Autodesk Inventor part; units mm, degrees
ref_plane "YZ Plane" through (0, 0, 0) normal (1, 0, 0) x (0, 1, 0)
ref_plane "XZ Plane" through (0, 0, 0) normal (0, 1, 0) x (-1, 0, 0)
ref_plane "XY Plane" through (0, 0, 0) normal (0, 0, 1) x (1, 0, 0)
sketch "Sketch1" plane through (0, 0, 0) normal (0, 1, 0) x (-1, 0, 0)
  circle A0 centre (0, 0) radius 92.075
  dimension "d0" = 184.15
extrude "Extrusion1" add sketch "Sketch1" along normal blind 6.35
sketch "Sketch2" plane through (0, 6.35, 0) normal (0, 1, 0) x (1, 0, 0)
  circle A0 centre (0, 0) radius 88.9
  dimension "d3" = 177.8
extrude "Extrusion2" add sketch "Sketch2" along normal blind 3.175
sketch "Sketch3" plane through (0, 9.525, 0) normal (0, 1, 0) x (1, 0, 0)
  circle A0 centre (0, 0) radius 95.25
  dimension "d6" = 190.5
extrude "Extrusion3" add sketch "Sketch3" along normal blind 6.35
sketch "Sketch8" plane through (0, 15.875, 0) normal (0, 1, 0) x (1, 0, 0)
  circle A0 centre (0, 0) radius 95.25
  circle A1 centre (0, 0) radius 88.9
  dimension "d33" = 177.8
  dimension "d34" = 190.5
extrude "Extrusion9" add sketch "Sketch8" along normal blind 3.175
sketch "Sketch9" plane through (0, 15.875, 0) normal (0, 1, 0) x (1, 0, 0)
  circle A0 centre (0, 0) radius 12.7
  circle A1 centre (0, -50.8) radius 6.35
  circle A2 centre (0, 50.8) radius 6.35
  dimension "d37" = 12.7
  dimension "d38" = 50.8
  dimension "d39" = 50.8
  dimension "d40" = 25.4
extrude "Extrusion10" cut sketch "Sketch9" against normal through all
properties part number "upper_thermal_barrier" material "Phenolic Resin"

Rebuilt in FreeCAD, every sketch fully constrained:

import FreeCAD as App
import Part
import Sketcher
from FreeCAD import Vector
Q = App.Units.Quantity

doc = App.newDocument("Part")
body = doc.addObject("PartDesign::Body", "Body")

# Sketch on XZ plane
sketch1 = doc.addObject("Sketcher::SketchObject", "Sketch")
body.addObject(sketch1)
sketch1.AttachmentSupport = (doc.XZ_Plane, [""])
sketch1.MapMode = "FlatFace"
sketch1.addGeometry(Part.Circle(Vector(0, 0, 0), Vector(0, 0, 1), 92), False)
sketch1.addConstraint([
    Sketcher.Constraint("Coincident", 0, 3, -1, 1),
    Sketcher.Constraint("Diameter", 0, Q("7.25 in")),
])
pad1 = doc.addObject("PartDesign::Pad", "Pad")
body.addObject(pad1)
pad1.Profile = sketch1
pad1.Length = Q("0.25 in")
pad1.Reversed = True

# Sketch on XZ plane
sketch2 = doc.addObject("Sketcher::SketchObject", "Sketch001")
body.addObject(sketch2)
sketch2.AttachmentSupport = (doc.XZ_Plane, [""])
sketch2.MapMode = "FlatFace"
sketch2.AttachmentOffset = App.Placement(Vector(0, 0, -0.25 * 25.4), App.Rotation())
sketch2.addGeometry(Part.Circle(Vector(0, 0, 0), Vector(0, 0, 1), 89), False)
sketch2.addConstraint([
    Sketcher.Constraint("Coincident", 0, 3, -1, 1),
    Sketcher.Constraint("Diameter", 0, Q("7 in")),
])
pad2 = doc.addObject("PartDesign::Pad", "Pad001")
body.addObject(pad2)
pad2.Profile = sketch2
pad2.Length = Q("0.125 in")
pad2.Reversed = True

# Sketch on XZ plane
sketch3 = doc.addObject("Sketcher::SketchObject", "Sketch002")
body.addObject(sketch3)
sketch3.AttachmentSupport = (doc.XZ_Plane, [""])
sketch3.MapMode = "FlatFace"
sketch3.AttachmentOffset = App.Placement(Vector(0, 0, -0.375 * 25.4), App.Rotation())
sketch3.addGeometry(Part.Circle(Vector(0, 0, 0), Vector(0, 0, 1), 95), False)
sketch3.addConstraint([
    Sketcher.Constraint("Coincident", 0, 3, -1, 1),
    Sketcher.Constraint("Diameter", 0, Q("7.5 in")),
])
pad3 = doc.addObject("PartDesign::Pad", "Pad002")
body.addObject(pad3)
pad3.Profile = sketch3
pad3.Length = Q("0.25 in")
pad3.Reversed = True

# Sketch on XZ plane
sketch4 = doc.addObject("Sketcher::SketchObject", "Sketch003")
body.addObject(sketch4)
sketch4.AttachmentSupport = (doc.XZ_Plane, [""])
sketch4.MapMode = "FlatFace"
sketch4.AttachmentOffset = App.Placement(Vector(0, 0, -0.625 * 25.4), App.Rotation())
sketch4.addGeometry([
    Part.Circle(Vector(0, 0, 0), Vector(0, 0, 1), 95),
    Part.Circle(Vector(0, 0, 0), Vector(0, 0, 1), 89),
], False)
sketch4.addConstraint([
    Sketcher.Constraint("Coincident", 0, 3, -1, 1),
    Sketcher.Constraint("Coincident", 1, 3, -1, 1),
    Sketcher.Constraint("Diameter", 1, Q("7 in")),
    Sketcher.Constraint("Diameter", 0, Q("7.5 in")),
])
pad4 = doc.addObject("PartDesign::Pad", "Pad003")
body.addObject(pad4)
pad4.Profile = sketch4
pad4.Length = Q("0.125 in")
pad4.Reversed = True

# Sketch on XZ plane
sketch5 = doc.addObject("Sketcher::SketchObject", "Sketch004")
body.addObject(sketch5)
sketch5.AttachmentSupport = (doc.XZ_Plane, [""])
sketch5.MapMode = "FlatFace"
sketch5.AttachmentOffset = App.Placement(Vector(0, 0, -0.625 * 25.4), App.Rotation())
sketch5.addGeometry([
    Part.Circle(Vector(0, 0, 0), Vector(0, 0, 1), 13),
    Part.Circle(Vector(0, 51, 0), Vector(0, 0, 1), 6),
    Part.Circle(Vector(0, -51, 0), Vector(0, 0, 1), 6),
], False)
sketch5.addConstraint([
    Sketcher.Constraint("Coincident", 0, 3, -1, 1),
    Sketcher.Constraint("Equal", 1, 2),
    Sketcher.Constraint("Symmetric", 1, 3, 2, 3, -1, 1),
    Sketcher.Constraint("PointOnObject", 1, 3, -2),
    Sketcher.Constraint("Diameter", 0, Q("1 in")),
    Sketcher.Constraint("Diameter", 1, Q("0.5 in")),
    Sketcher.Constraint("DistanceY", -1, 1, 1, 3, Q("2 in")),
])
pocket1 = doc.addObject("PartDesign::Pocket", "Pocket")
body.addObject(pocket1)
pocket1.Profile = sketch5
pocket1.Type = "ThroughAll"
pocket1.Reversed = True

doc.recompute()
